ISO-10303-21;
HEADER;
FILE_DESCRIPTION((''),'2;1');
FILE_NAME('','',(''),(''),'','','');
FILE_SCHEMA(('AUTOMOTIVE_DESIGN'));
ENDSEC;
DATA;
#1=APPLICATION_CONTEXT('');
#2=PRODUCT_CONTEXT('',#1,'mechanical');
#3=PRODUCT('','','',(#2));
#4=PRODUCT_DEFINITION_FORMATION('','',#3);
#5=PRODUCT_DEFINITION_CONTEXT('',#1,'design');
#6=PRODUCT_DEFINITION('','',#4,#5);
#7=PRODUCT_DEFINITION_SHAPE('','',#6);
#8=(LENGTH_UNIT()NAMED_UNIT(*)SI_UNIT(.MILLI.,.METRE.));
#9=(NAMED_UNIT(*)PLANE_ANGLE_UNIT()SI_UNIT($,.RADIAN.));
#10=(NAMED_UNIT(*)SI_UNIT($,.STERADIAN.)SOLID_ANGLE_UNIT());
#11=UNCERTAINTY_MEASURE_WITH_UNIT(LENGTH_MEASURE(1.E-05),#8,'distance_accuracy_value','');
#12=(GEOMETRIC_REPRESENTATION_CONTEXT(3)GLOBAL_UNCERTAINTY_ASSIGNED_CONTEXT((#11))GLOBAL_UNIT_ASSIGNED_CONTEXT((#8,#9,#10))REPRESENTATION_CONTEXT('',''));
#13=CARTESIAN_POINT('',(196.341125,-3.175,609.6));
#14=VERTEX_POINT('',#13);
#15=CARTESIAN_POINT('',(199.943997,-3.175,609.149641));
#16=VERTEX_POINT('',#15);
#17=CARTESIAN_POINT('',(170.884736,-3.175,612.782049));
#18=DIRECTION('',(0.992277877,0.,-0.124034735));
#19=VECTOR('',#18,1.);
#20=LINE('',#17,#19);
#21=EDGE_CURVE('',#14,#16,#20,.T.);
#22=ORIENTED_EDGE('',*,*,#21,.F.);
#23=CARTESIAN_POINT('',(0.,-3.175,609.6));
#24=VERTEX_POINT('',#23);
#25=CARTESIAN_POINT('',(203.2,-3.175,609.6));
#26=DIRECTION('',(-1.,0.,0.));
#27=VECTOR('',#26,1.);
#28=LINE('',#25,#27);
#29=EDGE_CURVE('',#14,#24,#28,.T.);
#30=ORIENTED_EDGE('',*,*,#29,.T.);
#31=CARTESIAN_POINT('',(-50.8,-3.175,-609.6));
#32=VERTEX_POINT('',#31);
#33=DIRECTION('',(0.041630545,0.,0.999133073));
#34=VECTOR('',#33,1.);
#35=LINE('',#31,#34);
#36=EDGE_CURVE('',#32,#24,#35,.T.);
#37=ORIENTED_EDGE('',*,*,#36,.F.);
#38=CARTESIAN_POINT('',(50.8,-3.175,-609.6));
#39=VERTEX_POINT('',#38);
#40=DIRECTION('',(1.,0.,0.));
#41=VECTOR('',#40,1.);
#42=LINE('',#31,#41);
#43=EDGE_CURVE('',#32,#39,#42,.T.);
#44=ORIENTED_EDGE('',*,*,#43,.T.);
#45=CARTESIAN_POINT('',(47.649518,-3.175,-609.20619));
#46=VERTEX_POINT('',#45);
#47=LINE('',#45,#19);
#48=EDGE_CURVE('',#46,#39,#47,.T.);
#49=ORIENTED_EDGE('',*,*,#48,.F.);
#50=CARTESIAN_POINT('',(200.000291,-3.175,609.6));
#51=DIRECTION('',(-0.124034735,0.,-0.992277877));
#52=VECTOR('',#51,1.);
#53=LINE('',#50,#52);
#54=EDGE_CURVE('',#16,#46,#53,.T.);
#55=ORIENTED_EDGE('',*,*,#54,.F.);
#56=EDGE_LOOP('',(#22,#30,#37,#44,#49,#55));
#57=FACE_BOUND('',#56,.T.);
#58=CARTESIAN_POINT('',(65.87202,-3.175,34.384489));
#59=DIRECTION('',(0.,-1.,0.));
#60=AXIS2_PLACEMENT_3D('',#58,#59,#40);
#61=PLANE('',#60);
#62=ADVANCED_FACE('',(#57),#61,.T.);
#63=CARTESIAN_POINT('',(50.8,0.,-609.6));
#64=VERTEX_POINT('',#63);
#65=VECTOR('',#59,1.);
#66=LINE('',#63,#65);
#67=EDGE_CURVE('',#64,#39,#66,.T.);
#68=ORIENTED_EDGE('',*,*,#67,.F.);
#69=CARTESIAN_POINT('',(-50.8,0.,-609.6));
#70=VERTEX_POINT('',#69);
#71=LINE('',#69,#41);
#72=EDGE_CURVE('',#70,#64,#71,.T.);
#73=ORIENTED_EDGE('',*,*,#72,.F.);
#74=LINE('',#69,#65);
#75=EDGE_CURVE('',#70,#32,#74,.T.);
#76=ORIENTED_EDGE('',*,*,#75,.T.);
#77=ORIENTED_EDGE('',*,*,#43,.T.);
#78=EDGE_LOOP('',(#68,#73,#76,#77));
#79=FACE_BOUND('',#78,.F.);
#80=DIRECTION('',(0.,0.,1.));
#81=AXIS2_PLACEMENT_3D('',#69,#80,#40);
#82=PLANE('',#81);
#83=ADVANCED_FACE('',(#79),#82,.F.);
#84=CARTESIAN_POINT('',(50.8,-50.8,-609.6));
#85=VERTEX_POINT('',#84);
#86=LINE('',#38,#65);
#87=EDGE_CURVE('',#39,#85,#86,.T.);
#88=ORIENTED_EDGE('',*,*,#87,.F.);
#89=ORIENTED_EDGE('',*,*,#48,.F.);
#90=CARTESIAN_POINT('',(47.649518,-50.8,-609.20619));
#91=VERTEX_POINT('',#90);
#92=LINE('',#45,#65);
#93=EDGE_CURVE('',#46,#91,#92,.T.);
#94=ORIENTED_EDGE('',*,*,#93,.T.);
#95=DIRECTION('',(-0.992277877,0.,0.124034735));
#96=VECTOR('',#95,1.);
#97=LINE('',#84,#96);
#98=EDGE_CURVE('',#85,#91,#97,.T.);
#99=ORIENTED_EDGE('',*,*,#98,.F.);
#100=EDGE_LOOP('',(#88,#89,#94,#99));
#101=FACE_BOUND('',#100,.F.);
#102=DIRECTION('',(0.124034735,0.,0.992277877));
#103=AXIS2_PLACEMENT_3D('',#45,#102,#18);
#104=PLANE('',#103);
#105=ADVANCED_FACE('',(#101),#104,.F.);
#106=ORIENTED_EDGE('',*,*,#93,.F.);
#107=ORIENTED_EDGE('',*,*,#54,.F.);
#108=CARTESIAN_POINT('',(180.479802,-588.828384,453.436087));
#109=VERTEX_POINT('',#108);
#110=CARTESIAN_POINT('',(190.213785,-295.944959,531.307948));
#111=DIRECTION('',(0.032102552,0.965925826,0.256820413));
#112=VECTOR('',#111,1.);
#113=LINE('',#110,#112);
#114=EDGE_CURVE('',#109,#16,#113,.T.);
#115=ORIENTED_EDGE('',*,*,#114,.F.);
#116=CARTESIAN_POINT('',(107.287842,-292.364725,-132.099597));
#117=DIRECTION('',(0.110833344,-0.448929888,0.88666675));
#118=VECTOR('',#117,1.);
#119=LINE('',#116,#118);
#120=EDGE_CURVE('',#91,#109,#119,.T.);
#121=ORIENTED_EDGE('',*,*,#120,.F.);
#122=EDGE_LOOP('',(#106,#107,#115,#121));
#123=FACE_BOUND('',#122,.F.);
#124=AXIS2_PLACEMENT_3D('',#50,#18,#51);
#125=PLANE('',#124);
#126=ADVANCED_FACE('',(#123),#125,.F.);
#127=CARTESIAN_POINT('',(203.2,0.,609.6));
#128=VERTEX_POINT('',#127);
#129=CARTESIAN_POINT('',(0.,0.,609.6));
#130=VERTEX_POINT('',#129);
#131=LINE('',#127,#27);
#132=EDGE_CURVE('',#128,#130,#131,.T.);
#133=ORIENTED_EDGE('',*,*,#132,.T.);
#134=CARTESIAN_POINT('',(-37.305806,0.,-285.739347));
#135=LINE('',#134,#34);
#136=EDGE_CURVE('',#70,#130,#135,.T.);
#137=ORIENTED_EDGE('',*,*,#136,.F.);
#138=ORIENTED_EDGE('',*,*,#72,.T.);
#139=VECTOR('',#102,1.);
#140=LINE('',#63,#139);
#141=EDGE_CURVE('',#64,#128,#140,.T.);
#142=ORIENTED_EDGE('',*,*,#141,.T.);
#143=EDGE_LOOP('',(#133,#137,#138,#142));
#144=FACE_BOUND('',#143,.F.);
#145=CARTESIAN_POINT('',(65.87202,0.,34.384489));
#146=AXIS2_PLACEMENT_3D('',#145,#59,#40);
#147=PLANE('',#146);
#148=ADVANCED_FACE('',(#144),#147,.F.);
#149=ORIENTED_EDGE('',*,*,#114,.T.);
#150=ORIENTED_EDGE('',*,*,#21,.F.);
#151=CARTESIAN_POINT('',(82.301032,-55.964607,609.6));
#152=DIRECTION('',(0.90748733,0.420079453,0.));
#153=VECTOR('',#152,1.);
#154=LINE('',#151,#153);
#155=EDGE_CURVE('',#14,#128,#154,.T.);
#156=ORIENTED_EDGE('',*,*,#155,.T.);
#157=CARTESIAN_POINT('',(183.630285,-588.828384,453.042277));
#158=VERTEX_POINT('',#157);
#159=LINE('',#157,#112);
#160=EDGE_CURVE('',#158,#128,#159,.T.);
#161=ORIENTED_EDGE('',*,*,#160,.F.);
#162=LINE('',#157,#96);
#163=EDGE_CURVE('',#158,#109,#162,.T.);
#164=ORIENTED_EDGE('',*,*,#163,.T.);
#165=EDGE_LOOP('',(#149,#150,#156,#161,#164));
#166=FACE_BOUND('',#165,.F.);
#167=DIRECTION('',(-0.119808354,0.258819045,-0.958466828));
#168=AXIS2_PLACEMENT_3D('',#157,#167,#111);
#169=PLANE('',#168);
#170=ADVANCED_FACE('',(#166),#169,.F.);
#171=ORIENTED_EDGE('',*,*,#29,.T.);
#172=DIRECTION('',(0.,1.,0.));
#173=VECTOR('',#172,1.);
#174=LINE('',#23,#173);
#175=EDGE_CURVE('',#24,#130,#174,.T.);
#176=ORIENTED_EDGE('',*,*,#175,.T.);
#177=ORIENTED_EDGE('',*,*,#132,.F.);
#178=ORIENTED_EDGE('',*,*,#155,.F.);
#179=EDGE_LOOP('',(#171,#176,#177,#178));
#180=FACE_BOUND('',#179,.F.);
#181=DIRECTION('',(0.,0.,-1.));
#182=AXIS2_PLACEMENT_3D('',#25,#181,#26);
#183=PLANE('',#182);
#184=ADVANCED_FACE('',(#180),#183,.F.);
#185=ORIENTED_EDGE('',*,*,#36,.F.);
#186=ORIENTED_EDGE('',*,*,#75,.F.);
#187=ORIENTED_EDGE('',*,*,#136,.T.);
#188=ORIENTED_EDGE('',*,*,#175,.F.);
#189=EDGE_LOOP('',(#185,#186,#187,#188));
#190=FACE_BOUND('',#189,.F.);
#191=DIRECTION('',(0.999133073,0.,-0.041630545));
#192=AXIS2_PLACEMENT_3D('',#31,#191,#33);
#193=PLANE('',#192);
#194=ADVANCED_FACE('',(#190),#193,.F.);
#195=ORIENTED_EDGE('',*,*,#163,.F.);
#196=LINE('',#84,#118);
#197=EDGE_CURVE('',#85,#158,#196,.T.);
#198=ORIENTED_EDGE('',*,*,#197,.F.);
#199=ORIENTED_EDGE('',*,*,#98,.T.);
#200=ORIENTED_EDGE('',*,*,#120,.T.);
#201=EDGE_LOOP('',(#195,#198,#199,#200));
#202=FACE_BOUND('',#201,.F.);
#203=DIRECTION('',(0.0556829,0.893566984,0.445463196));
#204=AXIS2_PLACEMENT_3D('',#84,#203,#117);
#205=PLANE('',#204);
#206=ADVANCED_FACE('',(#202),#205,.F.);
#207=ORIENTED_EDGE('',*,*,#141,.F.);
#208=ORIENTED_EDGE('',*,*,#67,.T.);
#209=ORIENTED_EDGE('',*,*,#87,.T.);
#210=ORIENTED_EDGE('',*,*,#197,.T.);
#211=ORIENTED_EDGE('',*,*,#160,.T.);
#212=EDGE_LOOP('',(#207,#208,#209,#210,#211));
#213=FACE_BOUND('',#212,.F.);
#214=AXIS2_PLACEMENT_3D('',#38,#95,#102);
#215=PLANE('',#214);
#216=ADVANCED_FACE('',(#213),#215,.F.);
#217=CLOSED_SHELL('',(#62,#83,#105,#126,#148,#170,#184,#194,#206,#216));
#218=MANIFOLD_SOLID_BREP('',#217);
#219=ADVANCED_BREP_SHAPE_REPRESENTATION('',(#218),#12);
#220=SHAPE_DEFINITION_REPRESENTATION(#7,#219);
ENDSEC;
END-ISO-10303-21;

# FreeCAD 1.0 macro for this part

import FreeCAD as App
import Part
import Sketcher

V = App.Vector
Q = App.Units.Quantity


def add_polygon(sketch, points):
    """Adds a closed chain of lines whose ends are joined by coincident constraints."""
    first, n = sketch.GeometryCount, len(points)
    for a, b in zip(points, points[1:] + points[:1]):
        sketch.addGeometry(Part.LineSegment(App.Vector(*a, 0), App.Vector(*b, 0)), False)
    for i in range(n):
        sketch.addConstraint(Sketcher.Constraint("Coincident", first + i, 2, first + (i + 1) % n, 1))

doc = App.newDocument("Part")
body = doc.addObject("PartDesign::Body", "Body")

# Sketch on XZ plane
sketch1 = body.newObject("Sketcher::SketchObject", "Sketch")
sketch1.AttachmentSupport = (doc.getObject("XZ_Plane"), [""])
sketch1.MapMode = "FlatFace"
add_polygon(sketch1, [(50.8, -609.6), (203.2, 609.6), (-203.2, 609.6), (-50.8, -609.6)])  # lines 0-3
sketch1.addConstraint([
    Sketcher.Constraint("Horizontal", 1),
    Sketcher.Constraint("Horizontal", 3),
    Sketcher.Constraint("Equal", 0, 2),
    Sketcher.Constraint("DistanceX", 1, 2, 1, 1, Q("16 in")),
    Sketcher.Constraint("DistanceX", 3, 1, 3, 2, Q("4 in")),
    Sketcher.Constraint("DistanceX", -1, 1, 0, 2, Q("8 in")),
    Sketcher.Constraint("DistanceY", -1, 1, 0, 2, Q("24 in")),
    Sketcher.Constraint("DistanceY", 2, 2, -1, 1, Q("24 in")),
])
pad1 = body.newObject("PartDesign::Pad", "Pad")
pad1.Profile = sketch1
pad1.Length = Q("0.125 in")

# Sketch on XZ plane
sketch2 = body.newObject("Sketcher::SketchObject", "Sketch001")
sketch2.AttachmentSupport = (doc.getObject("XZ_Plane"), [""])
sketch2.MapMode = "FlatFace"
sketch2.AttachmentOffset = App.Placement(V(0, 0, 0.125 * 25.4), App.Rotation())
add_polygon(sketch2, [(47.649518, -609.20619), (50.8, -609.6), (203.2, 609.6), (200.000291, 609.6)])  # lines 0-3
sketch2.addConstraint([
    Sketcher.Constraint("Horizontal", 2),
    Sketcher.Constraint("Perpendicular", 0, 1),
    Sketcher.Constraint("Parallel", 1, 3),
    Sketcher.Constraint("DistanceX", -1, 1, 0, 2, Q("2 in")),
    Sketcher.Constraint("DistanceY", 0, 2, -1, 1, Q("24 in")),
    Sketcher.Constraint("DistanceX", -1, 1, 1, 2, Q("8 in")),
    Sketcher.Constraint("DistanceY", -1, 1, 1, 2, Q("24 in")),
    Sketcher.Constraint("Distance", 0, Q("0.125 in")),
])
pad2 = body.newObject("PartDesign::Pad", "Pad001")
pad2.Profile = sketch2
pad2.Length = Q("24 in")

# Sketch on an angled plane
sketch3 = body.newObject("Sketcher::SketchObject", "Sketch002")
sketch3.Placement = App.Placement(V(125.046154, 0, -15.630769), App.Rotation(V(0, 1, 0), V(0.124034735, 0, 0.992277877), V(0.992277877, 0, -0.124034735), "ZXY"))
add_polygon(sketch3, [(-588.828384, 472.320362), (0, 630.096452), (0, 731.374145), (-712.452769, 731.374145), (-712.452769, -900.089503), (-50.8, -900.089503), (-50.8, -598.59163)])  # lines 0-6
sketch3.addConstraint([
    Sketcher.Constraint("Vertical", 1),
    Sketcher.Constraint("Horizontal", 2),
    Sketcher.Constraint("Vertical", 3),
    Sketcher.Constraint("Horizontal", 4),
    Sketcher.Constraint("Vertical", 5),
    Sketcher.Constraint("PointOnObject", 0, 2, -2),
    Sketcher.Constraint("Distance", 0, Q("24 in")),
    Sketcher.Constraint("DistanceX", 4, 2, -1, 1, Q("2 in")),
    Sketcher.Constraint("Angle", 0, Q("15 deg")),
    Sketcher.Constraint("DistanceX", 2, 2, 2, 1, 712.452769),
    Sketcher.Constraint("Distance", 6, 1198.468621),
    Sketcher.Constraint("DistanceY", 1, 1, 1, 2, 101.277693),
    Sketcher.Constraint("DistanceY", 3, 2, 3, 1, 1631.463648),
    Sketcher.Constraint("DistanceY", 5, 2, -1, 1, 598.59163),
])
pocket1 = body.newObject("PartDesign::Pocket", "Pocket")
pocket1.Profile = sketch3
pocket1.Length = Q("47.7 in")

# Sketch on XZ plane
sketch4 = body.newObject("Sketcher::SketchObject", "Sketch003")
sketch4.AttachmentSupport = (doc.getObject("XZ_Plane"), [""])
sketch4.MapMode = "FlatFace"
sketch4.AttachmentOffset = App.Placement(V(0, 0, 0.125 * 25.4), App.Rotation())
add_polygon(sketch4, [(-203.2, 609.6), (-50.8, -609.6), (0, 609.6)])  # lines 0-2
sketch4.addConstraint([
    Sketcher.Constraint("Horizontal", 2),
    Sketcher.Constraint("PointOnObject", 1, 2, -2),
    Sketcher.Constraint("DistanceX", 2, 2, 2, 1, Q("8 in")),
    Sketcher.Constraint("DistanceX", 0, 2, -1, 1, Q("2 in")),
    Sketcher.Constraint("DistanceY", 0, 2, -1, 1, Q("24 in")),
    Sketcher.Constraint("DistanceY", -1, 1, 1, 2, Q("24 in")),
])
pocket2 = body.newObject("PartDesign::Pocket", "Pocket001")
pocket2.Profile = sketch4
pocket2.Length = Q("1 in")

doc.recompute()
